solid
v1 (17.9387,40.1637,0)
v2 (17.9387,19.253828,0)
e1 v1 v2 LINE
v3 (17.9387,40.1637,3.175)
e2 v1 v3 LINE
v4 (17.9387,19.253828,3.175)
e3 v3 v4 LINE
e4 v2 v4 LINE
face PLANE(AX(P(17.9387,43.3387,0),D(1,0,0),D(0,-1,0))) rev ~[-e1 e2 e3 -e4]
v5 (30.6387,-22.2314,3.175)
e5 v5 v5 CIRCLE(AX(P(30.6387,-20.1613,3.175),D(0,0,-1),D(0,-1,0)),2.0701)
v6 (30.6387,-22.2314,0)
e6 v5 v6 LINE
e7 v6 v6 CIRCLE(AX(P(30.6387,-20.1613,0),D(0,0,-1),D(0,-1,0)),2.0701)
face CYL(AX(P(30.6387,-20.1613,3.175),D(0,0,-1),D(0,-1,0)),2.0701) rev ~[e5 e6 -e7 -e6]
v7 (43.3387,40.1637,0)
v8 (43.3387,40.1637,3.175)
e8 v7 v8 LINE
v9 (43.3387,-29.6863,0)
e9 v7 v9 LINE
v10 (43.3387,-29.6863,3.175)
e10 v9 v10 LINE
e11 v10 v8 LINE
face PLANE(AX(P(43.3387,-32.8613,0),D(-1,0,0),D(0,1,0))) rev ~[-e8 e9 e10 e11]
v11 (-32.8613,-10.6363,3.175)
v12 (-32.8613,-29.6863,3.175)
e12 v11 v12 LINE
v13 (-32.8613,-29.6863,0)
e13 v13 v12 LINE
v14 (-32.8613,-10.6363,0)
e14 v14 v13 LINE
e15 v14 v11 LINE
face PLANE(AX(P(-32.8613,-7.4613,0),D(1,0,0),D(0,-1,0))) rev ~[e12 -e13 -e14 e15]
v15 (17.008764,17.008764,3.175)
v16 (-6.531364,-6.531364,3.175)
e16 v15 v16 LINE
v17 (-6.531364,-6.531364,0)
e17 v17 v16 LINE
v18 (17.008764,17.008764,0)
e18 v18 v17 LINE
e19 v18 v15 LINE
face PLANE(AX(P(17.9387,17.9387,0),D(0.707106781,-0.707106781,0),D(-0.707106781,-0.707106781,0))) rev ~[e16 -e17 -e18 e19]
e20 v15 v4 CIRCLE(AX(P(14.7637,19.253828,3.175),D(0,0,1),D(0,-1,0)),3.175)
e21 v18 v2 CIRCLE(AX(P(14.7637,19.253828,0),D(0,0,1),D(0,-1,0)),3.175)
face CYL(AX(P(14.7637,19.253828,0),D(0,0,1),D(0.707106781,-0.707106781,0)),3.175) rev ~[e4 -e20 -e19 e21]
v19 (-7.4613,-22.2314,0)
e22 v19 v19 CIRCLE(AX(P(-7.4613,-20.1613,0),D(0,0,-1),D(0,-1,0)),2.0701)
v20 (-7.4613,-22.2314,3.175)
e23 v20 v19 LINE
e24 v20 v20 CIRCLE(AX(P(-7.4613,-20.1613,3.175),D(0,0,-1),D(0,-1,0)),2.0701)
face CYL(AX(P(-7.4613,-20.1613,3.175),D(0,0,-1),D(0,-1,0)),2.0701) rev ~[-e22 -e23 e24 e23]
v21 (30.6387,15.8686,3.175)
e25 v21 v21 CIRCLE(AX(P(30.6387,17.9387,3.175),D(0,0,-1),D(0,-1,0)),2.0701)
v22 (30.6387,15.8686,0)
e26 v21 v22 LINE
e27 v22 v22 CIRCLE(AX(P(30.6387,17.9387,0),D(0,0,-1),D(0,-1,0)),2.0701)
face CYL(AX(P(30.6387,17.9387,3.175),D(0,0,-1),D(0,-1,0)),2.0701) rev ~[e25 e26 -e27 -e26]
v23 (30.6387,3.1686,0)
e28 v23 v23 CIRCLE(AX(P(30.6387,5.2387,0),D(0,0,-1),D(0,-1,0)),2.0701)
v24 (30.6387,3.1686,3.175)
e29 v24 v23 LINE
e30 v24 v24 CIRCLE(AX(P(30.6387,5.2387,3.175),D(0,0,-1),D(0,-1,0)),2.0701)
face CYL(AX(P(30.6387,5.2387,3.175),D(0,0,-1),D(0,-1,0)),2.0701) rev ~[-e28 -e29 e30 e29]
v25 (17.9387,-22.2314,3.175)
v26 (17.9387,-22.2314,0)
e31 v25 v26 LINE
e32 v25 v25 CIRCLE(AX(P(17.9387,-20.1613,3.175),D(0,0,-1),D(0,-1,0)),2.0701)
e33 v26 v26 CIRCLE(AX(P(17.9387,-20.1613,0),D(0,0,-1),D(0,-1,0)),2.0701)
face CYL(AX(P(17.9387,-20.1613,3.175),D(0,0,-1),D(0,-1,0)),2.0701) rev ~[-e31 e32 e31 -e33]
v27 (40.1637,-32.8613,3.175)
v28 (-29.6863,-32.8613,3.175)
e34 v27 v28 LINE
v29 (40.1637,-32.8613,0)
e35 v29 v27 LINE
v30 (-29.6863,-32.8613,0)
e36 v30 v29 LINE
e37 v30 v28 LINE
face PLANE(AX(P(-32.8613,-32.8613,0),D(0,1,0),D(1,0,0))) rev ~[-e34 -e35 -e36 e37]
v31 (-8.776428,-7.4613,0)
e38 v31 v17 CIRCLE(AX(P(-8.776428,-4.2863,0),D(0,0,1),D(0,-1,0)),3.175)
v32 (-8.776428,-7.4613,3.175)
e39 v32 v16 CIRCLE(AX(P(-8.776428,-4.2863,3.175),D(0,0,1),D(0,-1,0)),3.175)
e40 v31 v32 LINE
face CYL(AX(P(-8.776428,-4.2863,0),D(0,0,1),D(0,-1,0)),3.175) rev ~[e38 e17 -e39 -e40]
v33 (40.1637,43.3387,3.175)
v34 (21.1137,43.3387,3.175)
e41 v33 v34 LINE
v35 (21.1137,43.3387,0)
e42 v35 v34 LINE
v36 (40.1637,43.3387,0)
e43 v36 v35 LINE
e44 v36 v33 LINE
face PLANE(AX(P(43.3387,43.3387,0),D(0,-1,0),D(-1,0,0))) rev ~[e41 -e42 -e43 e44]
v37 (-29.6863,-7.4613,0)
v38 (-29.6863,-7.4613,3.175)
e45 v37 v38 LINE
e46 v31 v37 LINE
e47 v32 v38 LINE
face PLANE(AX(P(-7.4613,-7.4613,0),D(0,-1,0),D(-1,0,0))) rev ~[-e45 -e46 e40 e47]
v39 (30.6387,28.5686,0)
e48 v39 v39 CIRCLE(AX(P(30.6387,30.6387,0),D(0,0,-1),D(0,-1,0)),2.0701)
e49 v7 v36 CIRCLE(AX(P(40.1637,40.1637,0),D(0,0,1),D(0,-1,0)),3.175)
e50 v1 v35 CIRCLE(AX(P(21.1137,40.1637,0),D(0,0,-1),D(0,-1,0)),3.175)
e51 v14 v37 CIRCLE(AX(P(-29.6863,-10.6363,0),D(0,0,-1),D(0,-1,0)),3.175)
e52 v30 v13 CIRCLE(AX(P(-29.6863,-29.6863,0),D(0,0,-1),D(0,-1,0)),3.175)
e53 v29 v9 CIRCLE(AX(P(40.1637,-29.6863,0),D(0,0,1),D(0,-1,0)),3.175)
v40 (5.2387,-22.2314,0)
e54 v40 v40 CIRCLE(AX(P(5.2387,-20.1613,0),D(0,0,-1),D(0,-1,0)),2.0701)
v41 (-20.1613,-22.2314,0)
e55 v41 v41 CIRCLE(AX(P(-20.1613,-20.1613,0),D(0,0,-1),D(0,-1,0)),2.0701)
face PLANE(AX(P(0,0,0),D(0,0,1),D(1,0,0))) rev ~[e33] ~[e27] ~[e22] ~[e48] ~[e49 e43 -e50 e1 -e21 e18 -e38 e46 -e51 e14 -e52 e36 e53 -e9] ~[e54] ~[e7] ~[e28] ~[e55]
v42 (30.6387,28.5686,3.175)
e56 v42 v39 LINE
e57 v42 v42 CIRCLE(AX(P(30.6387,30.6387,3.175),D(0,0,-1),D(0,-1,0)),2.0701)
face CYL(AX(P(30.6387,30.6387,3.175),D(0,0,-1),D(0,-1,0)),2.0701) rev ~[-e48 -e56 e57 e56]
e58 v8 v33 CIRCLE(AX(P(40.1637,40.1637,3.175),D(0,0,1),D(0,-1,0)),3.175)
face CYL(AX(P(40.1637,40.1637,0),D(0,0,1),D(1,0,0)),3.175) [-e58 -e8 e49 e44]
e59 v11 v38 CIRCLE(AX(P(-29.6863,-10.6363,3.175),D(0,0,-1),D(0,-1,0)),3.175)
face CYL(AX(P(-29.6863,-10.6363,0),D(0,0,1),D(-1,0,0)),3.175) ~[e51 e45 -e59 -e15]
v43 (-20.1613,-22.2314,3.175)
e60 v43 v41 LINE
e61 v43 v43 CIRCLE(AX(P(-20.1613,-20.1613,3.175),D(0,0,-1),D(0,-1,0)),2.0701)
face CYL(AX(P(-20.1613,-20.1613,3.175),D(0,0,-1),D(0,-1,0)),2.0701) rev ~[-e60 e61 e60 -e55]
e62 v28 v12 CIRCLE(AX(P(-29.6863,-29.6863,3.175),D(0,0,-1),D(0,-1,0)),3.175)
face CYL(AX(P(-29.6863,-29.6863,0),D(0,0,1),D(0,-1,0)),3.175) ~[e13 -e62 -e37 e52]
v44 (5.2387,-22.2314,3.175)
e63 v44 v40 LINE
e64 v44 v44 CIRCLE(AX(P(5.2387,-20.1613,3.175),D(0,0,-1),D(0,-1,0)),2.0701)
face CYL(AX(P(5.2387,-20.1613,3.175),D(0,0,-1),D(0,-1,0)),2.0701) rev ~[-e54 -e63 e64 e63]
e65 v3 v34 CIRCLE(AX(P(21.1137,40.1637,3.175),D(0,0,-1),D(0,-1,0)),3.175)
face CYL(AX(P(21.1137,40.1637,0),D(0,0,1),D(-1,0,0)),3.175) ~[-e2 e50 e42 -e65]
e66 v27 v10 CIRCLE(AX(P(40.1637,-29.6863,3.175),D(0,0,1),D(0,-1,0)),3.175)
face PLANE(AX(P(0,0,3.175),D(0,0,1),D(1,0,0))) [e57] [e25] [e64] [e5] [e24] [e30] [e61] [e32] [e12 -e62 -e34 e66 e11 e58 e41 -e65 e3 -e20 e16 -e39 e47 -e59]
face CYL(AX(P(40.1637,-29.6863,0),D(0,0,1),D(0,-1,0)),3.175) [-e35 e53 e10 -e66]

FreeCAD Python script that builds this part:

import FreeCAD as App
import Part
import Sketcher
Q = App.Units.Quantity


def edges_at(feature, points):
    """Names of the edges that pass closest to the given points."""
    edges = feature.Shape.Edges
    near = lambda p: min(range(len(edges)), key=lambda i: edges[i].distToShape(Part.Vertex(*p))[0])
    return sorted({f"Edge{near(p) + 1}" for p in points})

doc = App.newDocument("Part")
params = doc.addObject("Spreadsheet::Sheet", "Params")
for row, (alias, value) in enumerate([
    ("sketch1_width", "3 in"),
    ("sketch1_width2", "1 in"),
    ("pad1_length", "0.125 in"),
    ("fillet_radius", "0.125 in"),
    ("sketch2_diameter", "0.163 in"),
    ("hole_diameter", "0.163 in"),
], start=1):
    params.set(f"A{row}", alias)
    params.set(f"B{row}", "=" + value)
    params.setAlias(f"B{row}", alias)

body = doc.addObject("PartDesign::Body", "Body")

# Sketch on XY plane
sketch1 = doc.addObject("Sketcher::SketchObject", "Sketch")
body.addObject(sketch1)
sketch1.AttachmentSupport = (doc.XY_Plane, [""])
sketch1.MapMode = "FlatFace"
sketch1.addGeometry(Part.LineSegment(App.Vector(-33, -33, 0), App.Vector(43, -33, 0)), False)
sketch1.addGeometry(Part.LineSegment(App.Vector(43, -33, 0), App.Vector(43, 43, 0)), False)
sketch1.addGeometry(Part.LineSegment(App.Vector(43, 43, 0), App.Vector(18, 43, 0)), False)
sketch1.addGeometry(Part.LineSegment(App.Vector(18, 43, 0), App.Vector(18, 18, 0)), False)
sketch1.addGeometry(Part.LineSegment(App.Vector(18, 18, 0), App.Vector(-7, -7, 0)), False)
sketch1.addGeometry(Part.LineSegment(App.Vector(-7, -7, 0), App.Vector(-33, -7, 0)), False)
sketch1.addGeometry(Part.LineSegment(App.Vector(-33, -7, 0), App.Vector(-33, -33, 0)), False)
sketch1.addConstraint(Sketcher.Constraint("Coincident", 0, 2, 1, 1))
sketch1.addConstraint(Sketcher.Constraint("Coincident", 1, 2, 2, 1))
sketch1.addConstraint(Sketcher.Constraint("Coincident", 2, 2, 3, 1))
sketch1.addConstraint(Sketcher.Constraint("Coincident", 3, 2, 4, 1))
sketch1.addConstraint(Sketcher.Constraint("Coincident", 4, 2, 5, 1))
sketch1.addConstraint(Sketcher.Constraint("Coincident", 5, 2, 6, 1))
sketch1.addConstraint(Sketcher.Constraint("Coincident", 6, 2, 0, 1))
sketch1.addConstraint(Sketcher.Constraint("Horizontal", 0))
sketch1.addConstraint(Sketcher.Constraint("Vertical", 1))
sketch1.addConstraint(Sketcher.Constraint("Horizontal", 2))
sketch1.addConstraint(Sketcher.Constraint("Vertical", 3))
sketch1.addConstraint(Sketcher.Constraint("Horizontal", 5))
sketch1.addConstraint(Sketcher.Constraint("Vertical", 6))
sketch1.addConstraint(Sketcher.Constraint("Equal", 2, 5))
sketch1.addConstraint(Sketcher.Constraint("Equal", 0, 1))
sketch1.addConstraint(Sketcher.Constraint("Equal", 5, 3))
sketch1.addConstraint(Sketcher.Constraint("Equal", 3, 6))
sketch1.addConstraint(Sketcher.Constraint("DistanceX", 0, 1, 0, 2, Q("3 in")))
sketch1.addConstraint(Sketcher.Constraint("DistanceX", 2, 2, 2, 1, Q("1 in")))
sketch1.addConstraint(Sketcher.Constraint("DistanceX", -1, 1, 0, 2, 43.3387))
sketch1.addConstraint(Sketcher.Constraint("DistanceY", 0, 2, -1, 1, 32.8613))
sketch1.setExpression("Constraints[17]", "Params.sketch1_width")
sketch1.setExpression("Constraints[18]", "Params.sketch1_width2")
pad1 = doc.addObject("PartDesign::Pad", "Pad")
body.addObject(pad1)
pad1.Profile = sketch1
pad1.setExpression("Length", "Params.pad1_length")
doc.recompute()

fillet = doc.addObject("PartDesign::Fillet", "Fillet")
body.addObject(fillet)
fillet.Base = (pad1, edges_at(pad1, [
    (17.939, 43.339, 1.587),
    (43.339, 43.339, 1.587),
    (17.939, 17.939, 1.587),
    (-7.461, -7.461, 1.587),
    (-32.861, -7.461, 1.587),
    (-32.861, -32.861, 1.587),
    (43.339, -32.861, 1.587),
]))
fillet.setExpression("Radius", "Params.fillet_radius")

# Sketch on XY plane
sketch2 = doc.addObject("Sketcher::SketchObject", "Sketch001")
body.addObject(sketch2)
sketch2.AttachmentSupport = (doc.XY_Plane, [""])
sketch2.MapMode = "FlatFace"
sketch2.AttachmentOffset = App.Placement(App.Vector(0, 0, 0.125 * 25.4), App.Rotation())
sketch2.addGeometry(Part.Circle(App.Vector(30.6, 30.6, 0), App.Vector(0, 0, 1), 2.1), False)
sketch2.addGeometry(Part.Circle(App.Vector(30.6, 5.2, 0), App.Vector(0, 0, 1), 2.1), False)
sketch2.addGeometry(Part.Circle(App.Vector(30.6, -20.2, 0), App.Vector(0, 0, 1), 2.1), False)
sketch2.addGeometry(Part.Circle(App.Vector(5.2, -20.2, 0), App.Vector(0, 0, 1), 2.1), False)
sketch2.addGeometry(Part.Circle(App.Vector(-20.2, -20.2, 0), App.Vector(0, 0, 1), 2.1), False)
sketch2.addGeometry(Part.Circle(App.Vector(-7.5, -20.2, 0), App.Vector(0, 0, 1), 2.1), False)
sketch2.addGeometry(Part.Circle(App.Vector(17.9, -20.2, 0), App.Vector(0, 0, 1), 2.1), False)
sketch2.addGeometry(Part.Circle(App.Vector(30.6, 17.9, 0), App.Vector(0, 0, 1), 2.1), False)
sketch2.addConstraint(Sketcher.Constraint("Equal", 0, 1))
sketch2.addConstraint(Sketcher.Constraint("Equal", 1, 2))
sketch2.addConstraint(Sketcher.Constraint("Equal", 2, 3))
sketch2.addConstraint(Sketcher.Constraint("Equal", 3, 4))
sketch2.addConstraint(Sketcher.Constraint("Equal", 4, 5))
sketch2.addConstraint(Sketcher.Constraint("Equal", 5, 6))
sketch2.addConstraint(Sketcher.Constraint("Equal", 6, 7))
sketch2.addConstraint(Sketcher.Constraint("Horizontal", 2, 3, 3, 3))
sketch2.addConstraint(Sketcher.Constraint("Horizontal", 3, 3, 4, 3))
sketch2.addConstraint(Sketcher.Constraint("Horizontal", 4, 3, 5, 3))
sketch2.addConstraint(Sketcher.Constraint("Horizontal", 5, 3, 6, 3))
sketch2.addConstraint(Sketcher.Constraint("Vertical", 0, 3, 1, 3))
sketch2.addConstraint(Sketcher.Constraint("Vertical", 1, 3, 2, 3))
sketch2.addConstraint(Sketcher.Constraint("Vertical", 2, 3, 7, 3))
sketch2.addConstraint(Sketcher.Constraint("Diameter", 0, Q("0.163 in")))
sketch2.addConstraint(Sketcher.Constraint("DistanceY", 1, 3, 0, 3, Q("1 in")))
sketch2.addConstraint(Sketcher.Constraint("DistanceY", 2, 3, 1, 3, Q("1 in")))
sketch2.addConstraint(Sketcher.Constraint("DistanceX", 3, 3, 2, 3, Q("1 in")))
sketch2.addConstraint(Sketcher.Constraint("DistanceX", 4, 3, 3, 3, Q("1 in")))
sketch2.addConstraint(Sketcher.Constraint("DistanceX", 5, 3, 6, 3, Q("1 in")))
sketch2.addConstraint(Sketcher.Constraint("DistanceX", 5, 3, 3, 3, Q("0.5 in")))
sketch2.addConstraint(Sketcher.Constraint("DistanceY", 7, 3, 0, 3, Q("0.5 in")))
sketch2.addConstraint(Sketcher.Constraint("DistanceX", -1, 1, 0, 3, 30.6387))
sketch2.addConstraint(Sketcher.Constraint("DistanceY", -1, 1, 0, 3, 30.6387))
sketch2.setExpression("Constraints[14]", "Params.sketch2_diameter")
doc.recompute()
hole = doc.addObject("PartDesign::Hole", "Hole")
body.addObject(hole)
hole.Profile = sketch2
hole.ThreadType = "None"
hole.setExpression("Diameter", "Params.hole_diameter")
hole.DepthType = "ThroughAll"

doc.recompute()
